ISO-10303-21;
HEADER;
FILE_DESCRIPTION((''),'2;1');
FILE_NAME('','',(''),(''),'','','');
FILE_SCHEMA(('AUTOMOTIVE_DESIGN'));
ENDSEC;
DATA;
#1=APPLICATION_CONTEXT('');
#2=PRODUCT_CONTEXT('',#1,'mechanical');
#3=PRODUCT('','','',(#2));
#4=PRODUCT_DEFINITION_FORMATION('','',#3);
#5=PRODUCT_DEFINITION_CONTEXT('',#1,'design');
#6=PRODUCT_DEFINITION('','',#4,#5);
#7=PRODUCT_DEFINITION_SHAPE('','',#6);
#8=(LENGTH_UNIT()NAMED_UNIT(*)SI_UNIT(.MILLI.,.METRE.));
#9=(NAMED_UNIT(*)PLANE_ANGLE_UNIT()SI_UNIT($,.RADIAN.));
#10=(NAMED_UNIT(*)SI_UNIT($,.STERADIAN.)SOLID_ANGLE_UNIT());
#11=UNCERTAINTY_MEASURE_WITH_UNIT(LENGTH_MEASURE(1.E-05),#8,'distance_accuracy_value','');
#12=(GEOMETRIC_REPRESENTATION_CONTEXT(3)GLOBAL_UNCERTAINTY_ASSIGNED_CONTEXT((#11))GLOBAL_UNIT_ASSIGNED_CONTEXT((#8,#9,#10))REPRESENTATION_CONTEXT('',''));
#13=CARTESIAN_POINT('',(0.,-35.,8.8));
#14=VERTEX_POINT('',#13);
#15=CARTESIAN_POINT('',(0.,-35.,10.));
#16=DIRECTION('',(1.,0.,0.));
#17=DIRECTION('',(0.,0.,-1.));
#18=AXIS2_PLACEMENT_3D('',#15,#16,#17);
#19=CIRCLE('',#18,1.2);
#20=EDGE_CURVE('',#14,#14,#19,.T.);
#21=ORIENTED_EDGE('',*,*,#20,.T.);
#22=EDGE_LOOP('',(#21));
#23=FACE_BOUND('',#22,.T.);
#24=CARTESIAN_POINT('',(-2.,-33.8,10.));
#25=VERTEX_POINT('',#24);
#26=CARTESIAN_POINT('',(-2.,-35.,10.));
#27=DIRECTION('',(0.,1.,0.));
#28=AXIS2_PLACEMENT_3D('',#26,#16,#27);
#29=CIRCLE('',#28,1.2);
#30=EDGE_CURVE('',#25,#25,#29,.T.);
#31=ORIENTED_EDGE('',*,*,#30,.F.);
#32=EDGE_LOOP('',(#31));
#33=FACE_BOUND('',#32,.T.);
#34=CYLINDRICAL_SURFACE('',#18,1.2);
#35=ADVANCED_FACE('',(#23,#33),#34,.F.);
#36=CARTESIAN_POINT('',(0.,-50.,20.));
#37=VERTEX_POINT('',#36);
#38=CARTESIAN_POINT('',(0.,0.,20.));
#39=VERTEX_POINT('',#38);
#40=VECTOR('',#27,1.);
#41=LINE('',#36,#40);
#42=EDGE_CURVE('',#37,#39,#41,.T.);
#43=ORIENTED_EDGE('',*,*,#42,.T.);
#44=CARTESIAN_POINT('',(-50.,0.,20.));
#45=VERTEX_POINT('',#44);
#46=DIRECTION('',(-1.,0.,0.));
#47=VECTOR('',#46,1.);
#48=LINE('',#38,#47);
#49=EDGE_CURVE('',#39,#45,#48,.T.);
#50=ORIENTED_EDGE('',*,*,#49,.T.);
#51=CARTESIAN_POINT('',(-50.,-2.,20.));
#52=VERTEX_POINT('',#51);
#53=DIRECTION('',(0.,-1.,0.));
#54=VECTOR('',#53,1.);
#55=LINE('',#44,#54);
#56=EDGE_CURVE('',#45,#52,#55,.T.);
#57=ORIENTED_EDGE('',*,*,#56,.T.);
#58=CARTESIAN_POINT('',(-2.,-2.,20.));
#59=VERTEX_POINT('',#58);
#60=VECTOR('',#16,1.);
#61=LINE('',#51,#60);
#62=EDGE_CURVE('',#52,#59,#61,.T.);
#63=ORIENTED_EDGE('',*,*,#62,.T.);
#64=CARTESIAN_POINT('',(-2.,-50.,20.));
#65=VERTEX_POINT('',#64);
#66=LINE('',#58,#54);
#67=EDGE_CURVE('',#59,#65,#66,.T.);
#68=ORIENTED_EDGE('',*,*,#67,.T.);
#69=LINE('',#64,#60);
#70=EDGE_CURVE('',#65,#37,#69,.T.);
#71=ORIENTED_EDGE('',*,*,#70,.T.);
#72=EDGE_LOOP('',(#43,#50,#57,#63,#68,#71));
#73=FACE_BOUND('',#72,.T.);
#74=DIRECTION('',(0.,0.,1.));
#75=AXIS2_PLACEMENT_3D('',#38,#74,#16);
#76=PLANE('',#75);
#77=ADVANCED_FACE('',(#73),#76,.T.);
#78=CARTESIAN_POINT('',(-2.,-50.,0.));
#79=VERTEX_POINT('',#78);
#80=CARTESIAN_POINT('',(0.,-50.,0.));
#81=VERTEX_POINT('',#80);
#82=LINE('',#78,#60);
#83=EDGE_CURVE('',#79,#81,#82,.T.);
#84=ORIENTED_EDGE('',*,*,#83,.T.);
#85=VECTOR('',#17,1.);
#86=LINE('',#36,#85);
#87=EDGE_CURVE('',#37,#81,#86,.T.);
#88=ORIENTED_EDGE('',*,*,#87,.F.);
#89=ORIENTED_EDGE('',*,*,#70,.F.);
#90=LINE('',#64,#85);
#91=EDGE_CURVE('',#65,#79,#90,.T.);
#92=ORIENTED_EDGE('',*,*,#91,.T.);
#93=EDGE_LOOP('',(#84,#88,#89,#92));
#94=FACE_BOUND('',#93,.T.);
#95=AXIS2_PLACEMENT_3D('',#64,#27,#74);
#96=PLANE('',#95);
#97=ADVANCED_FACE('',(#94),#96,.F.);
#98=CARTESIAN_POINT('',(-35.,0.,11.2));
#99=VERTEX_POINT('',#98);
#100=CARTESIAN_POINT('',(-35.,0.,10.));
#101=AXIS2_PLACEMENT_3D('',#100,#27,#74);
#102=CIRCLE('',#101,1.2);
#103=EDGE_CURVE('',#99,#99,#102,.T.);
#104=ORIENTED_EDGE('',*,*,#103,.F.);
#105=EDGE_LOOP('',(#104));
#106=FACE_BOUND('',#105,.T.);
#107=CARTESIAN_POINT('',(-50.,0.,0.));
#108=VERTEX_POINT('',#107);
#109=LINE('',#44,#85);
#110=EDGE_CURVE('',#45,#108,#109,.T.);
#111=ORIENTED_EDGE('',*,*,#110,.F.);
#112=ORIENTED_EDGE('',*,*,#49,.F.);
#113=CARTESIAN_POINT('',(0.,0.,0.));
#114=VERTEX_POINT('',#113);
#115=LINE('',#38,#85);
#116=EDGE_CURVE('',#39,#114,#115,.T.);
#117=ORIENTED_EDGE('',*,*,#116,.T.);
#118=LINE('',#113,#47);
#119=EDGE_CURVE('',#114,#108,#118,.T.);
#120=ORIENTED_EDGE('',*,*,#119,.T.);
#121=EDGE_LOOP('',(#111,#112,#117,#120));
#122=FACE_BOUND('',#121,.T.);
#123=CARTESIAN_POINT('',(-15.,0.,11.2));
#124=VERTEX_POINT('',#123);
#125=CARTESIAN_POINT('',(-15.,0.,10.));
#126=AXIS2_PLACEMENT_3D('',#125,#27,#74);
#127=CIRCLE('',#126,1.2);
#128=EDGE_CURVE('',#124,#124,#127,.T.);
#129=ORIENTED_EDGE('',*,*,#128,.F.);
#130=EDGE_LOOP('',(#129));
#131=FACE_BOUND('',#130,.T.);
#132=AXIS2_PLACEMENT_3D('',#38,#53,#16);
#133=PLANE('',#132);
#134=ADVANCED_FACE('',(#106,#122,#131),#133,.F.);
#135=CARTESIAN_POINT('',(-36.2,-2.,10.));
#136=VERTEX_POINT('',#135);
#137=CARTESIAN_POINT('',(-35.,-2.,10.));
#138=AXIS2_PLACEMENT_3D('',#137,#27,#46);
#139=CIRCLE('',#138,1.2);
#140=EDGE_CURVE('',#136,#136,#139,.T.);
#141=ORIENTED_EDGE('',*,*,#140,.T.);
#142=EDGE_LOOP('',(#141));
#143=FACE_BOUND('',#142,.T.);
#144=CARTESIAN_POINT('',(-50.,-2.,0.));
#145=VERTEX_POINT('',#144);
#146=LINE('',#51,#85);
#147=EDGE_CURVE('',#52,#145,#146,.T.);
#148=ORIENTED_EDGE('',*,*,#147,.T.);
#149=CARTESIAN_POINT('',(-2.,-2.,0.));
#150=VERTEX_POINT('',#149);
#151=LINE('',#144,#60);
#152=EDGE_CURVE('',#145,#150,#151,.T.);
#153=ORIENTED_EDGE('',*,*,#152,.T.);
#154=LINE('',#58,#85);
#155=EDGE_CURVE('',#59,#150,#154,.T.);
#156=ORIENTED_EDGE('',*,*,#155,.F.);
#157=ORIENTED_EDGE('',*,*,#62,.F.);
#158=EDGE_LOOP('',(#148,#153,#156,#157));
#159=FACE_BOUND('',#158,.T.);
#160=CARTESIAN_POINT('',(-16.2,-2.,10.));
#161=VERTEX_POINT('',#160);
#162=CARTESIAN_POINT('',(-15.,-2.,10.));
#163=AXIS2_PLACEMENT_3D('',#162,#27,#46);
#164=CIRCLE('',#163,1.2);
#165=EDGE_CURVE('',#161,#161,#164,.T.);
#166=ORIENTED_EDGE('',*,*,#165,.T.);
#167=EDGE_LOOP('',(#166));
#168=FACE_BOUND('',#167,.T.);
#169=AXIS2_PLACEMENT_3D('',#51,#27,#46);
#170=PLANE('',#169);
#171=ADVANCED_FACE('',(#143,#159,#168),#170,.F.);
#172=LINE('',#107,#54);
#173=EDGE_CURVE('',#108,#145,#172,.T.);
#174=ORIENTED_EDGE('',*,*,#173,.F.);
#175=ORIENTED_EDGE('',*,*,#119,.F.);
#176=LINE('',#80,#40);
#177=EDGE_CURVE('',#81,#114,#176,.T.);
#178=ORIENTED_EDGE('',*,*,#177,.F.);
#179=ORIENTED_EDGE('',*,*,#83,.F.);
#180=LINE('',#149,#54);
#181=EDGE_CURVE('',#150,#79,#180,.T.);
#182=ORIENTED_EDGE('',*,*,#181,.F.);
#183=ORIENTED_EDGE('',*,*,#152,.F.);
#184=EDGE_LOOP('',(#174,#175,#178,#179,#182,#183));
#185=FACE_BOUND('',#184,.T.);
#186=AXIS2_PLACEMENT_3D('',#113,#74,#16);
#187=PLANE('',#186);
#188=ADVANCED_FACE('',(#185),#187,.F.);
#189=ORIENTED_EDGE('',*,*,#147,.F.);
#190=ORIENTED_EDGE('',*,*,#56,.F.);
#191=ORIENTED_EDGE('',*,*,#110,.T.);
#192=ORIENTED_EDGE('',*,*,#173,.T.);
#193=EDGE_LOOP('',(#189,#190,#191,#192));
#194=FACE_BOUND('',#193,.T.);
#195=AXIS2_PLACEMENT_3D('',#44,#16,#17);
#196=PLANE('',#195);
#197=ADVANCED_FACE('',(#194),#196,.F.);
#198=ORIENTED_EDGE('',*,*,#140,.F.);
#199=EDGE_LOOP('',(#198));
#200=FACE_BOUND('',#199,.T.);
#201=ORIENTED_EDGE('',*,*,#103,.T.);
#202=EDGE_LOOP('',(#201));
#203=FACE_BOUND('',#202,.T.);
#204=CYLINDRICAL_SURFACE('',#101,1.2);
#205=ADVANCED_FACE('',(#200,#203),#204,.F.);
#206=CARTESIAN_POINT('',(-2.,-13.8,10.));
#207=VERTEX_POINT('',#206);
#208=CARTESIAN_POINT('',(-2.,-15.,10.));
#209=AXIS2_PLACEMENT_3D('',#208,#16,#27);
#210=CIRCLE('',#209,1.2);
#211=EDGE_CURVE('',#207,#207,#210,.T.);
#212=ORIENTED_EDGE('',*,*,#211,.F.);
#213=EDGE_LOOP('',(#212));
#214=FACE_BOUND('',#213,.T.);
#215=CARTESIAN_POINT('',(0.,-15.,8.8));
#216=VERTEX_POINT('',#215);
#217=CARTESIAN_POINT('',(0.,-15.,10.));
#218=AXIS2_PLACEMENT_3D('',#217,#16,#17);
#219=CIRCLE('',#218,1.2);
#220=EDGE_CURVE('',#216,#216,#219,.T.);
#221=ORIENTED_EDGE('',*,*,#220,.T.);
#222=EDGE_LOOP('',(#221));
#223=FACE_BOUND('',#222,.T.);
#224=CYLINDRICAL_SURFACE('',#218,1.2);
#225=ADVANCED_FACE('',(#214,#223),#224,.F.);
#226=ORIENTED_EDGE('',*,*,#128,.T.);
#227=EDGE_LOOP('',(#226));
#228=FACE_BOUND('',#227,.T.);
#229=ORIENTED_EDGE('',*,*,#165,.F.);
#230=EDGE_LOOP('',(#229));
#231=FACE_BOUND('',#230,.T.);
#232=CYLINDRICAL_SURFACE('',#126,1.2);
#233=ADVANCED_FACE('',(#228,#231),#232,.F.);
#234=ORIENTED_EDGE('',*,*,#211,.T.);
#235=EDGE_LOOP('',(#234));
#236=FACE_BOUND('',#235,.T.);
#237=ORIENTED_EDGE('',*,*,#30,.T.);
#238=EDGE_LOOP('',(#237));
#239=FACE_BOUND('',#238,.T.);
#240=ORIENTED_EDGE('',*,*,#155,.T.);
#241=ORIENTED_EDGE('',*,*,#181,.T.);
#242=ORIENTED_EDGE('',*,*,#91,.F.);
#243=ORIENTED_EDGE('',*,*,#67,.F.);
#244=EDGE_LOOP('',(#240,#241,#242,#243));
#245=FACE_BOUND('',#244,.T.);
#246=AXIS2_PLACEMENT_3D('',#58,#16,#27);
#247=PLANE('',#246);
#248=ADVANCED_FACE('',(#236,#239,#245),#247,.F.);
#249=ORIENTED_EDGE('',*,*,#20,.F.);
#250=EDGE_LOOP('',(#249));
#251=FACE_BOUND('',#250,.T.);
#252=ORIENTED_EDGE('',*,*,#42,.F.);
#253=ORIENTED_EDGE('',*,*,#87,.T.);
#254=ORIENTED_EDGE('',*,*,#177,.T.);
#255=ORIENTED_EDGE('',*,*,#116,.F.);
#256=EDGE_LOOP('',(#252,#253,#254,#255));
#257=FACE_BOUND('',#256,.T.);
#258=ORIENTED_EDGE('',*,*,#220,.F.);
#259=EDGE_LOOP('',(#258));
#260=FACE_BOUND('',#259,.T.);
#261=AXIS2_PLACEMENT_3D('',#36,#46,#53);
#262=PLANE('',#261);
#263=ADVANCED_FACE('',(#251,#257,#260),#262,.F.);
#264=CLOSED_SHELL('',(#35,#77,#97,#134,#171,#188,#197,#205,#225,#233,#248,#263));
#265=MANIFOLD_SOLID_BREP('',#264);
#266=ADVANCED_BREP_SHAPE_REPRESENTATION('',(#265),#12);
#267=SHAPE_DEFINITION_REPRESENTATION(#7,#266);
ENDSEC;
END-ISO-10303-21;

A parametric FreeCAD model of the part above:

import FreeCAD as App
import Part
import Sketcher

V = App.Vector

doc = App.newDocument("Part")
body = doc.addObject("PartDesign::Body", "Body")

# Sketch on XY plane
sketch1 = body.newObject("Sketcher::SketchObject", "Sketch")
sketch1.AttachmentSupport = (doc.getObject("XY_Plane"), [""])
sketch1.MapMode = "FlatFace"
sketch1.addGeometry([
    Part.LineSegment(V(-50, 0, 0), V(-50, -2, 0)),  # 0
    Part.LineSegment(V(-50, -2, 0), V(-2, -2, 0)),  # 1
    Part.LineSegment(V(-2, -2, 0), V(-2, -50, 0)),  # 2
    Part.LineSegment(V(-2, -50, 0), V(0, -50, 0)),  # 3
    Part.LineSegment(V(0, -50, 0), V(0, 0, 0)),  # 4
    Part.LineSegment(V(0, 0, 0), V(-50, 0, 0)),  # 5
], False)
sketch1.addConstraint([
    Sketcher.Constraint("Coincident", 0, 2, 1, 1),
    Sketcher.Constraint("Coincident", 1, 2, 2, 1),
    Sketcher.Constraint("Coincident", 2, 2, 3, 1),
    Sketcher.Constraint("Coincident", 3, 2, 4, 1),
    Sketcher.Constraint("Coincident", 4, 2, 5, 1),
    Sketcher.Constraint("Coincident", 5, 2, 0, 1),
    Sketcher.Constraint("Vertical", 0),
    Sketcher.Constraint("Horizontal", 1),
    Sketcher.Constraint("Vertical", 2),
    Sketcher.Constraint("Horizontal", 3),
    Sketcher.Constraint("Vertical", 4),
    Sketcher.Constraint("Horizontal", 5),
    Sketcher.Constraint("Coincident", 4, 2, -1, 1),
    Sketcher.Constraint("Equal", 3, 0),
    Sketcher.Constraint("Equal", 1, 2),
    Sketcher.Constraint("DistanceX", 1, 1, 1, 2, 48.0),
    Sketcher.Constraint("DistanceX", 3, 1, 3, 2, 2.0),
])
pad1 = body.newObject("PartDesign::Pad", "Pad")
pad1.Profile = sketch1
pad1.Length = 20

# Sketch on XZ plane
sketch2 = body.newObject("Sketcher::SketchObject", "Sketch001")
sketch2.AttachmentSupport = (doc.getObject("XZ_Plane"), [""])
sketch2.MapMode = "FlatFace"
sketch2.addGeometry([
    Part.Circle(V(-35, 10, 0), V(0, 0, 1), 1.2),
    Part.Circle(V(-15, 10, 0), V(0, 0, 1), 1.2),
], False)
sketch2.addConstraint([
    Sketcher.Constraint("Equal", 0, 1),
    Sketcher.Constraint("Horizontal", 0, 3, 1, 3),
    Sketcher.Constraint("Diameter", 0, 2.4),
    Sketcher.Constraint("DistanceX", 0, 3, -1, 1, 35.0),
    Sketcher.Constraint("DistanceY", -1, 1, 0, 3, 10.0),
    Sketcher.Constraint("DistanceX", 1, 3, -1, 1, 15.0),
])
doc.recompute()
hole = body.newObject("PartDesign::Hole", "Hole")
hole.Profile = sketch2
hole.ThreadType = "None"
hole.Diameter = 2.4
hole.DepthType = "Dimension"
hole.Depth = 3
hole.DrillPoint = "Angled"
hole.DrillPointAngle = 118
hole.Reversed = True

# Sketch on YZ plane
sketch3 = body.newObject("Sketcher::SketchObject", "Sketch002")
sketch3.AttachmentSupport = (doc.getObject("YZ_Plane"), [""])
sketch3.MapMode = "FlatFace"
sketch3.addGeometry([
    Part.Circle(V(-15, 10, 0), V(0, 0, 1), 1.2),
    Part.Circle(V(-35, 10, 0), V(0, 0, 1), 1.2),
], False)
sketch3.addConstraint([
    Sketcher.Constraint("Equal", 0, 1),
    Sketcher.Constraint("Horizontal", 0, 3, 1, 3),
    Sketcher.Constraint("Diameter", 0, 2.4),
    Sketcher.Constraint("DistanceX", 0, 3, -1, 1, 15.0),
    Sketcher.Constraint("DistanceY", -1, 1, 0, 3, 10.0),
    Sketcher.Constraint("DistanceX", 1, 3, -1, 1, 35.0),
])
doc.recompute()
hole2 = body.newObject("PartDesign::Hole", "Hole001")
hole2.Profile = sketch3
hole2.ThreadType = "None"
hole2.Diameter = 2.4
hole2.DepthType = "Dimension"
hole2.Depth = 3
hole2.DrillPoint = "Angled"
hole2.DrillPointAngle = 118

doc.recompute()
